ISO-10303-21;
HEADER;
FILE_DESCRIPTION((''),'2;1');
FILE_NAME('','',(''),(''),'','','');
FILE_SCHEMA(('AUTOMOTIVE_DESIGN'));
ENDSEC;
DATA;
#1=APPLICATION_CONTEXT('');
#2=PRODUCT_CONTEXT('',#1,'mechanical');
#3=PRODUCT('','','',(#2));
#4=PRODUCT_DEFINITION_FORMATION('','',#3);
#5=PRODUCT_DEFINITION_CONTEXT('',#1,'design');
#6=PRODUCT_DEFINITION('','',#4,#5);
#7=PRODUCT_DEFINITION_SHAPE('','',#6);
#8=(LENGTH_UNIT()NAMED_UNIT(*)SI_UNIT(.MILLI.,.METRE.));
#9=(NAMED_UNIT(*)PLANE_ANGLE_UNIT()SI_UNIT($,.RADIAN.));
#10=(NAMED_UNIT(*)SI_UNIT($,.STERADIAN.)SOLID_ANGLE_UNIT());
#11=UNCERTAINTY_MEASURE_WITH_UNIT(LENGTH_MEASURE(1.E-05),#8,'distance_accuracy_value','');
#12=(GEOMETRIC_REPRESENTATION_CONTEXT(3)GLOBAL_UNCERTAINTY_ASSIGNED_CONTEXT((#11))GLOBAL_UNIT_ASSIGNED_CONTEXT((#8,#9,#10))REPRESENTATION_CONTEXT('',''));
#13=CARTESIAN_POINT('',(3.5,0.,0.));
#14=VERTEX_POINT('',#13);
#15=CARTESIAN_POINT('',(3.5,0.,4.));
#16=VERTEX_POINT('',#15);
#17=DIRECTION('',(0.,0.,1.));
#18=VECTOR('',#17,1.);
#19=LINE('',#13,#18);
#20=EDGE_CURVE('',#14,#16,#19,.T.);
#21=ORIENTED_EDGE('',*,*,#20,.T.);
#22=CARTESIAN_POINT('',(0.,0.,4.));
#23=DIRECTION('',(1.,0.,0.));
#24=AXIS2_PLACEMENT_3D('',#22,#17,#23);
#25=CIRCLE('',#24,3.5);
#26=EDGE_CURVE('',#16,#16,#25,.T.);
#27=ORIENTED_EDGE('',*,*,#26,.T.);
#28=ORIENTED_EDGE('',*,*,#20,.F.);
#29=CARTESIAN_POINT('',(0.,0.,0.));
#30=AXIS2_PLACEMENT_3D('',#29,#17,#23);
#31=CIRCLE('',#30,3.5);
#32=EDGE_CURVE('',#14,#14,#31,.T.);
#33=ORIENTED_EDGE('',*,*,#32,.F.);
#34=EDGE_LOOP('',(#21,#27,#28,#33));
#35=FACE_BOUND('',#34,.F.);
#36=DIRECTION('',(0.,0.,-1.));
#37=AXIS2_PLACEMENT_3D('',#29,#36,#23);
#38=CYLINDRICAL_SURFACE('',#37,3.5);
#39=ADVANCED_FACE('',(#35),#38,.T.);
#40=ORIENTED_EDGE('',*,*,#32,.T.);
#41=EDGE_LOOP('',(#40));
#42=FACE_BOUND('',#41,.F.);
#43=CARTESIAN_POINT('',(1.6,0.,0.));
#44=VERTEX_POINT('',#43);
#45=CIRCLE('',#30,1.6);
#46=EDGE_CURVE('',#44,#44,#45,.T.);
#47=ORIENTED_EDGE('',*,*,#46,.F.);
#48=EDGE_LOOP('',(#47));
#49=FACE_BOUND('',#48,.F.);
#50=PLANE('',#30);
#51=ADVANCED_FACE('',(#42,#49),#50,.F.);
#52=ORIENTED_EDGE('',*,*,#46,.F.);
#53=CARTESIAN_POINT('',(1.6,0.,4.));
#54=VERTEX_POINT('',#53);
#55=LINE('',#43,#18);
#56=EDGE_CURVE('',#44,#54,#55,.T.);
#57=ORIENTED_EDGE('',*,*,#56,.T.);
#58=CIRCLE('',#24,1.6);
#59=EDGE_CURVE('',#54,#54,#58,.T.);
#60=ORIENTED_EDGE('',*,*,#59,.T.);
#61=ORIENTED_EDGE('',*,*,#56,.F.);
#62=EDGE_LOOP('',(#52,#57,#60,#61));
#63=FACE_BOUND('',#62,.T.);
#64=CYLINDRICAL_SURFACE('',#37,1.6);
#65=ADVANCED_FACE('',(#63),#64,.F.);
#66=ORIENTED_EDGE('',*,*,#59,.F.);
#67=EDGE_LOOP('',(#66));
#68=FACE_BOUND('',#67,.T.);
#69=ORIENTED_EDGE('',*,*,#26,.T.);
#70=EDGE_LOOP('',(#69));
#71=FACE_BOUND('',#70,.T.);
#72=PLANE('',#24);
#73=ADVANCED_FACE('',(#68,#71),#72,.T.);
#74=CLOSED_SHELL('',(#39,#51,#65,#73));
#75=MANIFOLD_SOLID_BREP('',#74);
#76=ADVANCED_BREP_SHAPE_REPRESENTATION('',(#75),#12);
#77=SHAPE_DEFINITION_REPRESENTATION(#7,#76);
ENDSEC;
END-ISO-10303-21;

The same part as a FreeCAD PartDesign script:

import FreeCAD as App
import Part
import Sketcher

V = App.Vector

doc = App.newDocument("Part")
params = doc.addObject("Spreadsheet::Sheet", "Params")
for row, (alias, value) in enumerate([
    ("sketch1_diameter", "7 mm"),
    ("sketch1_diameter2", "3.2 mm"),
    ("pad1_length", "4 mm"),
], start=1):
    params.set(f"A{row}", alias)
    params.set(f"B{row}", "=" + value)
    params.setAlias(f"B{row}", alias)

body = doc.addObject("PartDesign::Body", "Body")

# Sketch on XY plane
sketch1 = body.newObject("Sketcher::SketchObject", "Sketch")
sketch1.AttachmentSupport = (doc.getObject("XY_Plane"), [""])
sketch1.MapMode = "FlatFace"
sketch1.addGeometry(Part.Circle(V(0, 0, 0), V(0, 0, 1), 3.5), False)
sketch1.addGeometry(Part.Circle(V(0, 0, 0), V(0, 0, 1), 1.6), False)
sketch1.addConstraint(Sketcher.Constraint("Coincident", 0, 3, -1, 1))
sketch1.addConstraint(Sketcher.Constraint("Coincident", 1, 3, -1, 1))
sketch1.addConstraint(Sketcher.Constraint("Diameter", 0, 7.0))
sketch1.addConstraint(Sketcher.Constraint("Diameter", 1, 3.2))
sketch1.setExpression("Constraints[2]", "Params.sketch1_diameter")
sketch1.setExpression("Constraints[3]", "Params.sketch1_diameter2")
pad1 = body.newObject("PartDesign::Pad", "Pad")
pad1.Profile = sketch1
pad1.setExpression("Length", "Params.pad1_length")

doc.recompute()
